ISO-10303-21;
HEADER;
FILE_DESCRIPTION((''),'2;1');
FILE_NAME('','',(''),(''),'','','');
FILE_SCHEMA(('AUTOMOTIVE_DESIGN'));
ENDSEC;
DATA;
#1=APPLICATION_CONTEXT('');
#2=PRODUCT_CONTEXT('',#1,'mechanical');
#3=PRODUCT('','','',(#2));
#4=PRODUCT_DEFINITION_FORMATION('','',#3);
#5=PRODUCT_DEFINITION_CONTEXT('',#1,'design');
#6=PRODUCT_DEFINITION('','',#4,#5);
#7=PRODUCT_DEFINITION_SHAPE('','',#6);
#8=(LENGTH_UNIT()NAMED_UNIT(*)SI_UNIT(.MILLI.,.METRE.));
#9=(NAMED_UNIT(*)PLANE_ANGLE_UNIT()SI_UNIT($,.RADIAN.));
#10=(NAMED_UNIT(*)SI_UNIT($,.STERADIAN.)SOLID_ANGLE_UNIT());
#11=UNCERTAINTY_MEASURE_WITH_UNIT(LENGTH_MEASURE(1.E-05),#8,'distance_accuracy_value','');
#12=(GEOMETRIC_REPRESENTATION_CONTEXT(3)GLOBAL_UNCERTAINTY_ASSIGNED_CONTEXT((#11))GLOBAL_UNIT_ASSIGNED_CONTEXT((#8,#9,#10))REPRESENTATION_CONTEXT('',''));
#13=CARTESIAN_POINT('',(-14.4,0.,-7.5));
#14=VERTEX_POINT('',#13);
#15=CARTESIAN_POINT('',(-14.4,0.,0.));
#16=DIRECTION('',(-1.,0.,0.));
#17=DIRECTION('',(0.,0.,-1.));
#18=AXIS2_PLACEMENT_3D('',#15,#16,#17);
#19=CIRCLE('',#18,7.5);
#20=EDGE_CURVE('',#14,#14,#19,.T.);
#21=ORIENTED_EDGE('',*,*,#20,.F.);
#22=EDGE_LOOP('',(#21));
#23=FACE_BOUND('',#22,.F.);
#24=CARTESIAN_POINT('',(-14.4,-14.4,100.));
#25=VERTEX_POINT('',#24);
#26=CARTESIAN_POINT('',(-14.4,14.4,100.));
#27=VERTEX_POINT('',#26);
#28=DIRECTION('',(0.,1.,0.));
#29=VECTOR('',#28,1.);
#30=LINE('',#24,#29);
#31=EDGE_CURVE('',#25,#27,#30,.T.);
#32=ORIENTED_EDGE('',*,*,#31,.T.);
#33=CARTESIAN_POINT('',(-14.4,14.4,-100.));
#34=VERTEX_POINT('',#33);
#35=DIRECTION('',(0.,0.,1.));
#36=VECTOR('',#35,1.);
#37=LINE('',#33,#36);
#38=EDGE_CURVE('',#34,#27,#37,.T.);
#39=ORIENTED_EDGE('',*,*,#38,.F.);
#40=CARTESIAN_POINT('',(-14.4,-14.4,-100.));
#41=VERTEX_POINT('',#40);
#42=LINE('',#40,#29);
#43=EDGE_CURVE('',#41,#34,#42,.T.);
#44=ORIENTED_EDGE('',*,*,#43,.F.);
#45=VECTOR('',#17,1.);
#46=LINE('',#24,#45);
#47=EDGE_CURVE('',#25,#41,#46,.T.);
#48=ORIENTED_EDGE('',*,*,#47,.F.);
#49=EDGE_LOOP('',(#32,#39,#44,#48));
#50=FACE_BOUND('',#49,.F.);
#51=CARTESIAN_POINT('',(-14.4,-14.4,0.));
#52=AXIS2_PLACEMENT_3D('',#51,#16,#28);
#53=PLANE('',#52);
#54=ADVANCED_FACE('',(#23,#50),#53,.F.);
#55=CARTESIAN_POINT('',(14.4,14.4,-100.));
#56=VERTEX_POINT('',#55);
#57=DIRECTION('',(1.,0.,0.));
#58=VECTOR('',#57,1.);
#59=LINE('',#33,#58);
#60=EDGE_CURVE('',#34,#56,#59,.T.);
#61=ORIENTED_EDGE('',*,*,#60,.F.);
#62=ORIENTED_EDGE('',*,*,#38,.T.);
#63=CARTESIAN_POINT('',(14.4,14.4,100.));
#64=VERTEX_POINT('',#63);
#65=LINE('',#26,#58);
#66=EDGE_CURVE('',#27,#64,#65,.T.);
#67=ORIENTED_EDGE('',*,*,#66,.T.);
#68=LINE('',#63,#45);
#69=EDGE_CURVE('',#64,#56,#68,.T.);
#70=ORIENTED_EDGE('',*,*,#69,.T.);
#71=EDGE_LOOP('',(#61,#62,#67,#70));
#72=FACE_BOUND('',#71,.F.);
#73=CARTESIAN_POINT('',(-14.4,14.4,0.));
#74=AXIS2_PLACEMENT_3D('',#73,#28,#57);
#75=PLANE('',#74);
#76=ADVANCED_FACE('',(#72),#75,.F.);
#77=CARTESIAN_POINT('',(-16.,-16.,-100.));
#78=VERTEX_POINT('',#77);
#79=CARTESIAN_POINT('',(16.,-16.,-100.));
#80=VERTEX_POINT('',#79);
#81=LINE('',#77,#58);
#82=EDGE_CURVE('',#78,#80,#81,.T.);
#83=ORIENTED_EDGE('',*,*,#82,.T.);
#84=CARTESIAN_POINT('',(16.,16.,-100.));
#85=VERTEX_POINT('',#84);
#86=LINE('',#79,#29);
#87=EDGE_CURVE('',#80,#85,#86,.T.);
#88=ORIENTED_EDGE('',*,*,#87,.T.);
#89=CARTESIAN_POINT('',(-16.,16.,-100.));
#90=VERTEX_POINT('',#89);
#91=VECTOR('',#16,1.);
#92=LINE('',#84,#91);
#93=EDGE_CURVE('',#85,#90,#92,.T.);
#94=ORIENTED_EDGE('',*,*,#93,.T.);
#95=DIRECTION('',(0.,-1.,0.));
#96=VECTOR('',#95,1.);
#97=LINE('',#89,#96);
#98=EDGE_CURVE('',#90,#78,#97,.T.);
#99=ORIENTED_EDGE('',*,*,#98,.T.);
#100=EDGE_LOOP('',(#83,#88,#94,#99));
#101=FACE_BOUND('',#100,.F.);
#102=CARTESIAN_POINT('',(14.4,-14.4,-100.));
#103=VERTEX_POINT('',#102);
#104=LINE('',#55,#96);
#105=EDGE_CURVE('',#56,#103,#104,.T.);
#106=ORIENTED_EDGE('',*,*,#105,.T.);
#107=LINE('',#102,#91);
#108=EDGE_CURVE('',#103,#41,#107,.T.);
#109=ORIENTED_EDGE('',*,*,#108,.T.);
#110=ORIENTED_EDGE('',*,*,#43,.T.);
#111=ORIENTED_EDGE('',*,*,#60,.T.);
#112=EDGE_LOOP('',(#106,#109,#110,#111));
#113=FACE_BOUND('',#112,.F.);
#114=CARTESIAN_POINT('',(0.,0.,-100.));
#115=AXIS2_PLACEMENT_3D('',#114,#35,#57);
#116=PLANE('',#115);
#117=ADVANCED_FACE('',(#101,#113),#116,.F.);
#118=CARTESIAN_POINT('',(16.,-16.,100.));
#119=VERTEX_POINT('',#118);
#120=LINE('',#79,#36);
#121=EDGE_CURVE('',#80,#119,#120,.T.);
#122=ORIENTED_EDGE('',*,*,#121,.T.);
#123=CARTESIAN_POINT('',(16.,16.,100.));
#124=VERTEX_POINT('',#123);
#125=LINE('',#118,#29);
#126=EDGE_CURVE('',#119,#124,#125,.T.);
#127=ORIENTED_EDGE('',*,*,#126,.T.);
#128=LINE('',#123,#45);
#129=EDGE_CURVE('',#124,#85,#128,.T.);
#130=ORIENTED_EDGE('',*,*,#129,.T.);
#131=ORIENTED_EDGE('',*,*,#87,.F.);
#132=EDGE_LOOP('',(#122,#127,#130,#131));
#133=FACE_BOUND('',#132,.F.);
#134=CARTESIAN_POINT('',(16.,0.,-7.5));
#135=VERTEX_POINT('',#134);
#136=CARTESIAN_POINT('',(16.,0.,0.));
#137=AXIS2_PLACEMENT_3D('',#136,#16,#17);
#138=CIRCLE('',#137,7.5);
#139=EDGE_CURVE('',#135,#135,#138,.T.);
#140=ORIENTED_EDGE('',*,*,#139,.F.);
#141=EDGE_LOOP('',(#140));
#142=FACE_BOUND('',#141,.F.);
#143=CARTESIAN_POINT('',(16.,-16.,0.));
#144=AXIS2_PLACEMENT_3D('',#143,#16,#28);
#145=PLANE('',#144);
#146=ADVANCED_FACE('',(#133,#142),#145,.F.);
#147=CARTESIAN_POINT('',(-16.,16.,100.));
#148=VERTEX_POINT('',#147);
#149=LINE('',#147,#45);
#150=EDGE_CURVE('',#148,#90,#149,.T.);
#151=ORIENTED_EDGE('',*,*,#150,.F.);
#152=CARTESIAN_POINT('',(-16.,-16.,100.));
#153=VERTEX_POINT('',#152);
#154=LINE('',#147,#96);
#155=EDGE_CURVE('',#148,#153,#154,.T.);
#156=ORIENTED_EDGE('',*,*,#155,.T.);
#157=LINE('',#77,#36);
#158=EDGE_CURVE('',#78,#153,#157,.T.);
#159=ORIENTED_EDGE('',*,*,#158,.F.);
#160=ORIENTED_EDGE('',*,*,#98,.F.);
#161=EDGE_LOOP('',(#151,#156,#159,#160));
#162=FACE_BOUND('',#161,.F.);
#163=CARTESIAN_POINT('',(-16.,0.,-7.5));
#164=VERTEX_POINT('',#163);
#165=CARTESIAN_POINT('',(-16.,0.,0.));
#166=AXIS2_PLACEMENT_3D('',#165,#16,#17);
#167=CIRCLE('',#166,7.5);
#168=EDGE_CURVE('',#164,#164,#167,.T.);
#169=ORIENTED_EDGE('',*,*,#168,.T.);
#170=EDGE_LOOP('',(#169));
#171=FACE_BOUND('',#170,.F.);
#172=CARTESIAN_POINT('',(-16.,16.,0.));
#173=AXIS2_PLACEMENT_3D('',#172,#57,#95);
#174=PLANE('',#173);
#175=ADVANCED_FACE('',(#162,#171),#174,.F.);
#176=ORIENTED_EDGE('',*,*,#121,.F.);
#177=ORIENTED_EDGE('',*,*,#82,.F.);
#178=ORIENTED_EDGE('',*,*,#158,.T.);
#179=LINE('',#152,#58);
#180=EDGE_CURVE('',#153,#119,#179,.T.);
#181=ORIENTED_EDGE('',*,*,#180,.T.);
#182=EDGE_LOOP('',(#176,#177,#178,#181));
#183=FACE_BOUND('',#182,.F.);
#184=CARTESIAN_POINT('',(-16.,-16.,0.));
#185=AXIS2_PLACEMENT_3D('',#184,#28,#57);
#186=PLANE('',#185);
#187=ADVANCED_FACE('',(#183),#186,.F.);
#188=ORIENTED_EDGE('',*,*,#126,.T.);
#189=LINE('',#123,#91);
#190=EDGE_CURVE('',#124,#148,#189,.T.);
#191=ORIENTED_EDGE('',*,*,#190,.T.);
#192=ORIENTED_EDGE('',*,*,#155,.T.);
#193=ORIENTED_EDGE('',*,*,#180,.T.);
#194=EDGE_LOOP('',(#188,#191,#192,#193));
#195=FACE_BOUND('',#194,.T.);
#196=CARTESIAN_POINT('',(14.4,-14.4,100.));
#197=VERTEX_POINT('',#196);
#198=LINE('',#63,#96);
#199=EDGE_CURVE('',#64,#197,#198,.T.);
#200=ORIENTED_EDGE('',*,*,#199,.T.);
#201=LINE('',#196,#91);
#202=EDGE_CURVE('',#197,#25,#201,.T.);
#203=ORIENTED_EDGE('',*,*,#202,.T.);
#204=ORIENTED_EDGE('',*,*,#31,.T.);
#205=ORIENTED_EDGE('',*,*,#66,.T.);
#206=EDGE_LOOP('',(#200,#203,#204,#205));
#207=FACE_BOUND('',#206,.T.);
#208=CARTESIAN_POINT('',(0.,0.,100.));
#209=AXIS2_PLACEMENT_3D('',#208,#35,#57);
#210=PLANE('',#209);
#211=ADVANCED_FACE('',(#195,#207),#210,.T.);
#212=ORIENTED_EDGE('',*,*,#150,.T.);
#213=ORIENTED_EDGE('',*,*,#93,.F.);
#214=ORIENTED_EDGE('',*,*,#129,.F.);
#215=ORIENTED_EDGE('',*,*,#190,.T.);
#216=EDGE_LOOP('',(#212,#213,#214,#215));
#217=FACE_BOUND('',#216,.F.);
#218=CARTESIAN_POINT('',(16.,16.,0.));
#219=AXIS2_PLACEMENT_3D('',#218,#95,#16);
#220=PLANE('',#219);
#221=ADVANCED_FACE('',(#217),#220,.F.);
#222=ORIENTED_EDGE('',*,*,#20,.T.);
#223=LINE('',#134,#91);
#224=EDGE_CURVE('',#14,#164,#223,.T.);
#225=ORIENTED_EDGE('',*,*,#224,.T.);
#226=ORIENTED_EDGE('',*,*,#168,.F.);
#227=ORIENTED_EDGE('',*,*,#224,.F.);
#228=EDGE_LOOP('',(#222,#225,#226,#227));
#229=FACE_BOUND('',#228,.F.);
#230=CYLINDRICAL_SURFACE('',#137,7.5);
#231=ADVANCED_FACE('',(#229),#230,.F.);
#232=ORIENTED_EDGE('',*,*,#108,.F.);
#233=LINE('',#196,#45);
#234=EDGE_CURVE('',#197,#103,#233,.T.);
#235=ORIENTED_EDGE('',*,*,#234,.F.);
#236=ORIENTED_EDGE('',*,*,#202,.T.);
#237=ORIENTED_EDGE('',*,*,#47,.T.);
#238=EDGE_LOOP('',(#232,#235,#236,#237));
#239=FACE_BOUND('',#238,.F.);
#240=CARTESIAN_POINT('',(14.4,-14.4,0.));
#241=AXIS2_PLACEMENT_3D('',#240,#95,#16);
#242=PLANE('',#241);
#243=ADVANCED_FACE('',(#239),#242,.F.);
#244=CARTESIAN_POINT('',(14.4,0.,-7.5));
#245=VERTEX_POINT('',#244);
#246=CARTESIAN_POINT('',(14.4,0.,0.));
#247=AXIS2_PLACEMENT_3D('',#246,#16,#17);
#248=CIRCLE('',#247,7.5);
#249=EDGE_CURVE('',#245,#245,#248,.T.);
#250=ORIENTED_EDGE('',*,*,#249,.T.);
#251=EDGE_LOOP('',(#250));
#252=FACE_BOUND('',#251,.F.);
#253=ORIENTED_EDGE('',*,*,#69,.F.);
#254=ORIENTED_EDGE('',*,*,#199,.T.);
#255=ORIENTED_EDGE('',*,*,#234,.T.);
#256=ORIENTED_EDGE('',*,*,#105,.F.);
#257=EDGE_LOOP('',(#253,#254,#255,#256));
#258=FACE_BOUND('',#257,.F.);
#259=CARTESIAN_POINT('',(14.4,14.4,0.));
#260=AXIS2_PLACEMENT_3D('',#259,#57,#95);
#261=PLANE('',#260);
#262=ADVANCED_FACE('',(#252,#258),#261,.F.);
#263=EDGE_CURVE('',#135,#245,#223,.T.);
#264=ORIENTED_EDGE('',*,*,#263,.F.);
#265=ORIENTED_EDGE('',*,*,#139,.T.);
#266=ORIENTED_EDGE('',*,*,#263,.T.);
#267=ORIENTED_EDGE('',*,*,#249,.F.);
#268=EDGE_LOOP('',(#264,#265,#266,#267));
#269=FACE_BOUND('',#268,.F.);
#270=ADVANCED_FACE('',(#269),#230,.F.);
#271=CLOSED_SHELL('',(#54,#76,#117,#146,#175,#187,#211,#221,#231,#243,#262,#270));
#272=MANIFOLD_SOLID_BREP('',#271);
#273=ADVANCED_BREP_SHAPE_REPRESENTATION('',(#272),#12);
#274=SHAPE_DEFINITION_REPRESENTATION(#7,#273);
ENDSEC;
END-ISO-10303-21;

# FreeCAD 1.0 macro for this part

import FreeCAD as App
import Part
import Sketcher
Q = App.Units.Quantity


def add_polygon(sketch, points):
    """Adds a closed chain of lines whose ends are joined by coincident constraints."""
    first, n = sketch.GeometryCount, len(points)
    for a, b in zip(points, points[1:] + points[:1]):
        sketch.addGeometry(Part.LineSegment(App.Vector(*a, 0), App.Vector(*b, 0)), False)
    for i in range(n):
        sketch.addConstraint(Sketcher.Constraint("Coincident", first + i, 2, first + (i + 1) % n, 1))

doc = App.newDocument("Part")
body = doc.addObject("PartDesign::Body", "Body")

sketch1 = body.newObject("Sketcher::SketchObject", "Sketch")
sketch1.AttachmentSupport = (doc.getObject("XY_Plane"), [""])
sketch1.MapMode = "FlatFace"
add_polygon(sketch1, [(-16, 16), (-16, -16), (16, -16), (16, 16)])
add_polygon(sketch1, [(-14, -14), (-14, 14), (14, 14), (14, -14)])
sketch1.addConstraint(Sketcher.Constraint("Vertical", 0))
sketch1.addConstraint(Sketcher.Constraint("Horizontal", 1))
sketch1.addConstraint(Sketcher.Constraint("Vertical", 2))
sketch1.addConstraint(Sketcher.Constraint("Horizontal", 3))
sketch1.addConstraint(Sketcher.Constraint("Vertical", 4))
sketch1.addConstraint(Sketcher.Constraint("Horizontal", 5))
sketch1.addConstraint(Sketcher.Constraint("Vertical", 6))
sketch1.addConstraint(Sketcher.Constraint("Horizontal", 7))
sketch1.addConstraint(Sketcher.Constraint("Symmetric", 0, 2, 2, 2, -1, 1))
sketch1.addConstraint(Sketcher.Constraint("Symmetric", 4, 2, 6, 2, -1, 1))
sketch1.addConstraint(Sketcher.Constraint("Equal", 3, 0))
sketch1.addConstraint(Sketcher.Constraint("Equal", 7, 4))
sketch1.addConstraint(Sketcher.Constraint("DistanceX", 1, 1, 1, 2, Q("32 mm")))
sketch1.addConstraint(Sketcher.Constraint("DistanceX", 3, 2, 4, 2, Q("1.6 mm")))
pad1 = body.newObject("PartDesign::Pad", "Pad")
pad1.Profile = sketch1
pad1.Length = 200
pad1.Midplane = True

sketch2 = body.newObject("Sketcher::SketchObject", "Sketch001")
sketch2.AttachmentSupport = (doc.getObject("YZ_Plane"), [""])
sketch2.MapMode = "FlatFace"
sketch2.AttachmentOffset = App.Placement(App.Vector(0, 0, 16), App.Rotation())
sketch2.addGeometry(Part.Circle(App.Vector(0, 0, 0), App.Vector(0, 0, 1), 8), False)
sketch2.addConstraint(Sketcher.Constraint("Coincident", 0, 3, -1, 1))
sketch2.addConstraint(Sketcher.Constraint("Diameter", 0, Q("15 mm")))
doc.recompute()
hole = body.newObject("PartDesign::Hole", "Hole")
hole.Profile = sketch2
hole.ThreadType = "None"
hole.Diameter = 15
hole.DepthType = "ThroughAll"

doc.recompute()
